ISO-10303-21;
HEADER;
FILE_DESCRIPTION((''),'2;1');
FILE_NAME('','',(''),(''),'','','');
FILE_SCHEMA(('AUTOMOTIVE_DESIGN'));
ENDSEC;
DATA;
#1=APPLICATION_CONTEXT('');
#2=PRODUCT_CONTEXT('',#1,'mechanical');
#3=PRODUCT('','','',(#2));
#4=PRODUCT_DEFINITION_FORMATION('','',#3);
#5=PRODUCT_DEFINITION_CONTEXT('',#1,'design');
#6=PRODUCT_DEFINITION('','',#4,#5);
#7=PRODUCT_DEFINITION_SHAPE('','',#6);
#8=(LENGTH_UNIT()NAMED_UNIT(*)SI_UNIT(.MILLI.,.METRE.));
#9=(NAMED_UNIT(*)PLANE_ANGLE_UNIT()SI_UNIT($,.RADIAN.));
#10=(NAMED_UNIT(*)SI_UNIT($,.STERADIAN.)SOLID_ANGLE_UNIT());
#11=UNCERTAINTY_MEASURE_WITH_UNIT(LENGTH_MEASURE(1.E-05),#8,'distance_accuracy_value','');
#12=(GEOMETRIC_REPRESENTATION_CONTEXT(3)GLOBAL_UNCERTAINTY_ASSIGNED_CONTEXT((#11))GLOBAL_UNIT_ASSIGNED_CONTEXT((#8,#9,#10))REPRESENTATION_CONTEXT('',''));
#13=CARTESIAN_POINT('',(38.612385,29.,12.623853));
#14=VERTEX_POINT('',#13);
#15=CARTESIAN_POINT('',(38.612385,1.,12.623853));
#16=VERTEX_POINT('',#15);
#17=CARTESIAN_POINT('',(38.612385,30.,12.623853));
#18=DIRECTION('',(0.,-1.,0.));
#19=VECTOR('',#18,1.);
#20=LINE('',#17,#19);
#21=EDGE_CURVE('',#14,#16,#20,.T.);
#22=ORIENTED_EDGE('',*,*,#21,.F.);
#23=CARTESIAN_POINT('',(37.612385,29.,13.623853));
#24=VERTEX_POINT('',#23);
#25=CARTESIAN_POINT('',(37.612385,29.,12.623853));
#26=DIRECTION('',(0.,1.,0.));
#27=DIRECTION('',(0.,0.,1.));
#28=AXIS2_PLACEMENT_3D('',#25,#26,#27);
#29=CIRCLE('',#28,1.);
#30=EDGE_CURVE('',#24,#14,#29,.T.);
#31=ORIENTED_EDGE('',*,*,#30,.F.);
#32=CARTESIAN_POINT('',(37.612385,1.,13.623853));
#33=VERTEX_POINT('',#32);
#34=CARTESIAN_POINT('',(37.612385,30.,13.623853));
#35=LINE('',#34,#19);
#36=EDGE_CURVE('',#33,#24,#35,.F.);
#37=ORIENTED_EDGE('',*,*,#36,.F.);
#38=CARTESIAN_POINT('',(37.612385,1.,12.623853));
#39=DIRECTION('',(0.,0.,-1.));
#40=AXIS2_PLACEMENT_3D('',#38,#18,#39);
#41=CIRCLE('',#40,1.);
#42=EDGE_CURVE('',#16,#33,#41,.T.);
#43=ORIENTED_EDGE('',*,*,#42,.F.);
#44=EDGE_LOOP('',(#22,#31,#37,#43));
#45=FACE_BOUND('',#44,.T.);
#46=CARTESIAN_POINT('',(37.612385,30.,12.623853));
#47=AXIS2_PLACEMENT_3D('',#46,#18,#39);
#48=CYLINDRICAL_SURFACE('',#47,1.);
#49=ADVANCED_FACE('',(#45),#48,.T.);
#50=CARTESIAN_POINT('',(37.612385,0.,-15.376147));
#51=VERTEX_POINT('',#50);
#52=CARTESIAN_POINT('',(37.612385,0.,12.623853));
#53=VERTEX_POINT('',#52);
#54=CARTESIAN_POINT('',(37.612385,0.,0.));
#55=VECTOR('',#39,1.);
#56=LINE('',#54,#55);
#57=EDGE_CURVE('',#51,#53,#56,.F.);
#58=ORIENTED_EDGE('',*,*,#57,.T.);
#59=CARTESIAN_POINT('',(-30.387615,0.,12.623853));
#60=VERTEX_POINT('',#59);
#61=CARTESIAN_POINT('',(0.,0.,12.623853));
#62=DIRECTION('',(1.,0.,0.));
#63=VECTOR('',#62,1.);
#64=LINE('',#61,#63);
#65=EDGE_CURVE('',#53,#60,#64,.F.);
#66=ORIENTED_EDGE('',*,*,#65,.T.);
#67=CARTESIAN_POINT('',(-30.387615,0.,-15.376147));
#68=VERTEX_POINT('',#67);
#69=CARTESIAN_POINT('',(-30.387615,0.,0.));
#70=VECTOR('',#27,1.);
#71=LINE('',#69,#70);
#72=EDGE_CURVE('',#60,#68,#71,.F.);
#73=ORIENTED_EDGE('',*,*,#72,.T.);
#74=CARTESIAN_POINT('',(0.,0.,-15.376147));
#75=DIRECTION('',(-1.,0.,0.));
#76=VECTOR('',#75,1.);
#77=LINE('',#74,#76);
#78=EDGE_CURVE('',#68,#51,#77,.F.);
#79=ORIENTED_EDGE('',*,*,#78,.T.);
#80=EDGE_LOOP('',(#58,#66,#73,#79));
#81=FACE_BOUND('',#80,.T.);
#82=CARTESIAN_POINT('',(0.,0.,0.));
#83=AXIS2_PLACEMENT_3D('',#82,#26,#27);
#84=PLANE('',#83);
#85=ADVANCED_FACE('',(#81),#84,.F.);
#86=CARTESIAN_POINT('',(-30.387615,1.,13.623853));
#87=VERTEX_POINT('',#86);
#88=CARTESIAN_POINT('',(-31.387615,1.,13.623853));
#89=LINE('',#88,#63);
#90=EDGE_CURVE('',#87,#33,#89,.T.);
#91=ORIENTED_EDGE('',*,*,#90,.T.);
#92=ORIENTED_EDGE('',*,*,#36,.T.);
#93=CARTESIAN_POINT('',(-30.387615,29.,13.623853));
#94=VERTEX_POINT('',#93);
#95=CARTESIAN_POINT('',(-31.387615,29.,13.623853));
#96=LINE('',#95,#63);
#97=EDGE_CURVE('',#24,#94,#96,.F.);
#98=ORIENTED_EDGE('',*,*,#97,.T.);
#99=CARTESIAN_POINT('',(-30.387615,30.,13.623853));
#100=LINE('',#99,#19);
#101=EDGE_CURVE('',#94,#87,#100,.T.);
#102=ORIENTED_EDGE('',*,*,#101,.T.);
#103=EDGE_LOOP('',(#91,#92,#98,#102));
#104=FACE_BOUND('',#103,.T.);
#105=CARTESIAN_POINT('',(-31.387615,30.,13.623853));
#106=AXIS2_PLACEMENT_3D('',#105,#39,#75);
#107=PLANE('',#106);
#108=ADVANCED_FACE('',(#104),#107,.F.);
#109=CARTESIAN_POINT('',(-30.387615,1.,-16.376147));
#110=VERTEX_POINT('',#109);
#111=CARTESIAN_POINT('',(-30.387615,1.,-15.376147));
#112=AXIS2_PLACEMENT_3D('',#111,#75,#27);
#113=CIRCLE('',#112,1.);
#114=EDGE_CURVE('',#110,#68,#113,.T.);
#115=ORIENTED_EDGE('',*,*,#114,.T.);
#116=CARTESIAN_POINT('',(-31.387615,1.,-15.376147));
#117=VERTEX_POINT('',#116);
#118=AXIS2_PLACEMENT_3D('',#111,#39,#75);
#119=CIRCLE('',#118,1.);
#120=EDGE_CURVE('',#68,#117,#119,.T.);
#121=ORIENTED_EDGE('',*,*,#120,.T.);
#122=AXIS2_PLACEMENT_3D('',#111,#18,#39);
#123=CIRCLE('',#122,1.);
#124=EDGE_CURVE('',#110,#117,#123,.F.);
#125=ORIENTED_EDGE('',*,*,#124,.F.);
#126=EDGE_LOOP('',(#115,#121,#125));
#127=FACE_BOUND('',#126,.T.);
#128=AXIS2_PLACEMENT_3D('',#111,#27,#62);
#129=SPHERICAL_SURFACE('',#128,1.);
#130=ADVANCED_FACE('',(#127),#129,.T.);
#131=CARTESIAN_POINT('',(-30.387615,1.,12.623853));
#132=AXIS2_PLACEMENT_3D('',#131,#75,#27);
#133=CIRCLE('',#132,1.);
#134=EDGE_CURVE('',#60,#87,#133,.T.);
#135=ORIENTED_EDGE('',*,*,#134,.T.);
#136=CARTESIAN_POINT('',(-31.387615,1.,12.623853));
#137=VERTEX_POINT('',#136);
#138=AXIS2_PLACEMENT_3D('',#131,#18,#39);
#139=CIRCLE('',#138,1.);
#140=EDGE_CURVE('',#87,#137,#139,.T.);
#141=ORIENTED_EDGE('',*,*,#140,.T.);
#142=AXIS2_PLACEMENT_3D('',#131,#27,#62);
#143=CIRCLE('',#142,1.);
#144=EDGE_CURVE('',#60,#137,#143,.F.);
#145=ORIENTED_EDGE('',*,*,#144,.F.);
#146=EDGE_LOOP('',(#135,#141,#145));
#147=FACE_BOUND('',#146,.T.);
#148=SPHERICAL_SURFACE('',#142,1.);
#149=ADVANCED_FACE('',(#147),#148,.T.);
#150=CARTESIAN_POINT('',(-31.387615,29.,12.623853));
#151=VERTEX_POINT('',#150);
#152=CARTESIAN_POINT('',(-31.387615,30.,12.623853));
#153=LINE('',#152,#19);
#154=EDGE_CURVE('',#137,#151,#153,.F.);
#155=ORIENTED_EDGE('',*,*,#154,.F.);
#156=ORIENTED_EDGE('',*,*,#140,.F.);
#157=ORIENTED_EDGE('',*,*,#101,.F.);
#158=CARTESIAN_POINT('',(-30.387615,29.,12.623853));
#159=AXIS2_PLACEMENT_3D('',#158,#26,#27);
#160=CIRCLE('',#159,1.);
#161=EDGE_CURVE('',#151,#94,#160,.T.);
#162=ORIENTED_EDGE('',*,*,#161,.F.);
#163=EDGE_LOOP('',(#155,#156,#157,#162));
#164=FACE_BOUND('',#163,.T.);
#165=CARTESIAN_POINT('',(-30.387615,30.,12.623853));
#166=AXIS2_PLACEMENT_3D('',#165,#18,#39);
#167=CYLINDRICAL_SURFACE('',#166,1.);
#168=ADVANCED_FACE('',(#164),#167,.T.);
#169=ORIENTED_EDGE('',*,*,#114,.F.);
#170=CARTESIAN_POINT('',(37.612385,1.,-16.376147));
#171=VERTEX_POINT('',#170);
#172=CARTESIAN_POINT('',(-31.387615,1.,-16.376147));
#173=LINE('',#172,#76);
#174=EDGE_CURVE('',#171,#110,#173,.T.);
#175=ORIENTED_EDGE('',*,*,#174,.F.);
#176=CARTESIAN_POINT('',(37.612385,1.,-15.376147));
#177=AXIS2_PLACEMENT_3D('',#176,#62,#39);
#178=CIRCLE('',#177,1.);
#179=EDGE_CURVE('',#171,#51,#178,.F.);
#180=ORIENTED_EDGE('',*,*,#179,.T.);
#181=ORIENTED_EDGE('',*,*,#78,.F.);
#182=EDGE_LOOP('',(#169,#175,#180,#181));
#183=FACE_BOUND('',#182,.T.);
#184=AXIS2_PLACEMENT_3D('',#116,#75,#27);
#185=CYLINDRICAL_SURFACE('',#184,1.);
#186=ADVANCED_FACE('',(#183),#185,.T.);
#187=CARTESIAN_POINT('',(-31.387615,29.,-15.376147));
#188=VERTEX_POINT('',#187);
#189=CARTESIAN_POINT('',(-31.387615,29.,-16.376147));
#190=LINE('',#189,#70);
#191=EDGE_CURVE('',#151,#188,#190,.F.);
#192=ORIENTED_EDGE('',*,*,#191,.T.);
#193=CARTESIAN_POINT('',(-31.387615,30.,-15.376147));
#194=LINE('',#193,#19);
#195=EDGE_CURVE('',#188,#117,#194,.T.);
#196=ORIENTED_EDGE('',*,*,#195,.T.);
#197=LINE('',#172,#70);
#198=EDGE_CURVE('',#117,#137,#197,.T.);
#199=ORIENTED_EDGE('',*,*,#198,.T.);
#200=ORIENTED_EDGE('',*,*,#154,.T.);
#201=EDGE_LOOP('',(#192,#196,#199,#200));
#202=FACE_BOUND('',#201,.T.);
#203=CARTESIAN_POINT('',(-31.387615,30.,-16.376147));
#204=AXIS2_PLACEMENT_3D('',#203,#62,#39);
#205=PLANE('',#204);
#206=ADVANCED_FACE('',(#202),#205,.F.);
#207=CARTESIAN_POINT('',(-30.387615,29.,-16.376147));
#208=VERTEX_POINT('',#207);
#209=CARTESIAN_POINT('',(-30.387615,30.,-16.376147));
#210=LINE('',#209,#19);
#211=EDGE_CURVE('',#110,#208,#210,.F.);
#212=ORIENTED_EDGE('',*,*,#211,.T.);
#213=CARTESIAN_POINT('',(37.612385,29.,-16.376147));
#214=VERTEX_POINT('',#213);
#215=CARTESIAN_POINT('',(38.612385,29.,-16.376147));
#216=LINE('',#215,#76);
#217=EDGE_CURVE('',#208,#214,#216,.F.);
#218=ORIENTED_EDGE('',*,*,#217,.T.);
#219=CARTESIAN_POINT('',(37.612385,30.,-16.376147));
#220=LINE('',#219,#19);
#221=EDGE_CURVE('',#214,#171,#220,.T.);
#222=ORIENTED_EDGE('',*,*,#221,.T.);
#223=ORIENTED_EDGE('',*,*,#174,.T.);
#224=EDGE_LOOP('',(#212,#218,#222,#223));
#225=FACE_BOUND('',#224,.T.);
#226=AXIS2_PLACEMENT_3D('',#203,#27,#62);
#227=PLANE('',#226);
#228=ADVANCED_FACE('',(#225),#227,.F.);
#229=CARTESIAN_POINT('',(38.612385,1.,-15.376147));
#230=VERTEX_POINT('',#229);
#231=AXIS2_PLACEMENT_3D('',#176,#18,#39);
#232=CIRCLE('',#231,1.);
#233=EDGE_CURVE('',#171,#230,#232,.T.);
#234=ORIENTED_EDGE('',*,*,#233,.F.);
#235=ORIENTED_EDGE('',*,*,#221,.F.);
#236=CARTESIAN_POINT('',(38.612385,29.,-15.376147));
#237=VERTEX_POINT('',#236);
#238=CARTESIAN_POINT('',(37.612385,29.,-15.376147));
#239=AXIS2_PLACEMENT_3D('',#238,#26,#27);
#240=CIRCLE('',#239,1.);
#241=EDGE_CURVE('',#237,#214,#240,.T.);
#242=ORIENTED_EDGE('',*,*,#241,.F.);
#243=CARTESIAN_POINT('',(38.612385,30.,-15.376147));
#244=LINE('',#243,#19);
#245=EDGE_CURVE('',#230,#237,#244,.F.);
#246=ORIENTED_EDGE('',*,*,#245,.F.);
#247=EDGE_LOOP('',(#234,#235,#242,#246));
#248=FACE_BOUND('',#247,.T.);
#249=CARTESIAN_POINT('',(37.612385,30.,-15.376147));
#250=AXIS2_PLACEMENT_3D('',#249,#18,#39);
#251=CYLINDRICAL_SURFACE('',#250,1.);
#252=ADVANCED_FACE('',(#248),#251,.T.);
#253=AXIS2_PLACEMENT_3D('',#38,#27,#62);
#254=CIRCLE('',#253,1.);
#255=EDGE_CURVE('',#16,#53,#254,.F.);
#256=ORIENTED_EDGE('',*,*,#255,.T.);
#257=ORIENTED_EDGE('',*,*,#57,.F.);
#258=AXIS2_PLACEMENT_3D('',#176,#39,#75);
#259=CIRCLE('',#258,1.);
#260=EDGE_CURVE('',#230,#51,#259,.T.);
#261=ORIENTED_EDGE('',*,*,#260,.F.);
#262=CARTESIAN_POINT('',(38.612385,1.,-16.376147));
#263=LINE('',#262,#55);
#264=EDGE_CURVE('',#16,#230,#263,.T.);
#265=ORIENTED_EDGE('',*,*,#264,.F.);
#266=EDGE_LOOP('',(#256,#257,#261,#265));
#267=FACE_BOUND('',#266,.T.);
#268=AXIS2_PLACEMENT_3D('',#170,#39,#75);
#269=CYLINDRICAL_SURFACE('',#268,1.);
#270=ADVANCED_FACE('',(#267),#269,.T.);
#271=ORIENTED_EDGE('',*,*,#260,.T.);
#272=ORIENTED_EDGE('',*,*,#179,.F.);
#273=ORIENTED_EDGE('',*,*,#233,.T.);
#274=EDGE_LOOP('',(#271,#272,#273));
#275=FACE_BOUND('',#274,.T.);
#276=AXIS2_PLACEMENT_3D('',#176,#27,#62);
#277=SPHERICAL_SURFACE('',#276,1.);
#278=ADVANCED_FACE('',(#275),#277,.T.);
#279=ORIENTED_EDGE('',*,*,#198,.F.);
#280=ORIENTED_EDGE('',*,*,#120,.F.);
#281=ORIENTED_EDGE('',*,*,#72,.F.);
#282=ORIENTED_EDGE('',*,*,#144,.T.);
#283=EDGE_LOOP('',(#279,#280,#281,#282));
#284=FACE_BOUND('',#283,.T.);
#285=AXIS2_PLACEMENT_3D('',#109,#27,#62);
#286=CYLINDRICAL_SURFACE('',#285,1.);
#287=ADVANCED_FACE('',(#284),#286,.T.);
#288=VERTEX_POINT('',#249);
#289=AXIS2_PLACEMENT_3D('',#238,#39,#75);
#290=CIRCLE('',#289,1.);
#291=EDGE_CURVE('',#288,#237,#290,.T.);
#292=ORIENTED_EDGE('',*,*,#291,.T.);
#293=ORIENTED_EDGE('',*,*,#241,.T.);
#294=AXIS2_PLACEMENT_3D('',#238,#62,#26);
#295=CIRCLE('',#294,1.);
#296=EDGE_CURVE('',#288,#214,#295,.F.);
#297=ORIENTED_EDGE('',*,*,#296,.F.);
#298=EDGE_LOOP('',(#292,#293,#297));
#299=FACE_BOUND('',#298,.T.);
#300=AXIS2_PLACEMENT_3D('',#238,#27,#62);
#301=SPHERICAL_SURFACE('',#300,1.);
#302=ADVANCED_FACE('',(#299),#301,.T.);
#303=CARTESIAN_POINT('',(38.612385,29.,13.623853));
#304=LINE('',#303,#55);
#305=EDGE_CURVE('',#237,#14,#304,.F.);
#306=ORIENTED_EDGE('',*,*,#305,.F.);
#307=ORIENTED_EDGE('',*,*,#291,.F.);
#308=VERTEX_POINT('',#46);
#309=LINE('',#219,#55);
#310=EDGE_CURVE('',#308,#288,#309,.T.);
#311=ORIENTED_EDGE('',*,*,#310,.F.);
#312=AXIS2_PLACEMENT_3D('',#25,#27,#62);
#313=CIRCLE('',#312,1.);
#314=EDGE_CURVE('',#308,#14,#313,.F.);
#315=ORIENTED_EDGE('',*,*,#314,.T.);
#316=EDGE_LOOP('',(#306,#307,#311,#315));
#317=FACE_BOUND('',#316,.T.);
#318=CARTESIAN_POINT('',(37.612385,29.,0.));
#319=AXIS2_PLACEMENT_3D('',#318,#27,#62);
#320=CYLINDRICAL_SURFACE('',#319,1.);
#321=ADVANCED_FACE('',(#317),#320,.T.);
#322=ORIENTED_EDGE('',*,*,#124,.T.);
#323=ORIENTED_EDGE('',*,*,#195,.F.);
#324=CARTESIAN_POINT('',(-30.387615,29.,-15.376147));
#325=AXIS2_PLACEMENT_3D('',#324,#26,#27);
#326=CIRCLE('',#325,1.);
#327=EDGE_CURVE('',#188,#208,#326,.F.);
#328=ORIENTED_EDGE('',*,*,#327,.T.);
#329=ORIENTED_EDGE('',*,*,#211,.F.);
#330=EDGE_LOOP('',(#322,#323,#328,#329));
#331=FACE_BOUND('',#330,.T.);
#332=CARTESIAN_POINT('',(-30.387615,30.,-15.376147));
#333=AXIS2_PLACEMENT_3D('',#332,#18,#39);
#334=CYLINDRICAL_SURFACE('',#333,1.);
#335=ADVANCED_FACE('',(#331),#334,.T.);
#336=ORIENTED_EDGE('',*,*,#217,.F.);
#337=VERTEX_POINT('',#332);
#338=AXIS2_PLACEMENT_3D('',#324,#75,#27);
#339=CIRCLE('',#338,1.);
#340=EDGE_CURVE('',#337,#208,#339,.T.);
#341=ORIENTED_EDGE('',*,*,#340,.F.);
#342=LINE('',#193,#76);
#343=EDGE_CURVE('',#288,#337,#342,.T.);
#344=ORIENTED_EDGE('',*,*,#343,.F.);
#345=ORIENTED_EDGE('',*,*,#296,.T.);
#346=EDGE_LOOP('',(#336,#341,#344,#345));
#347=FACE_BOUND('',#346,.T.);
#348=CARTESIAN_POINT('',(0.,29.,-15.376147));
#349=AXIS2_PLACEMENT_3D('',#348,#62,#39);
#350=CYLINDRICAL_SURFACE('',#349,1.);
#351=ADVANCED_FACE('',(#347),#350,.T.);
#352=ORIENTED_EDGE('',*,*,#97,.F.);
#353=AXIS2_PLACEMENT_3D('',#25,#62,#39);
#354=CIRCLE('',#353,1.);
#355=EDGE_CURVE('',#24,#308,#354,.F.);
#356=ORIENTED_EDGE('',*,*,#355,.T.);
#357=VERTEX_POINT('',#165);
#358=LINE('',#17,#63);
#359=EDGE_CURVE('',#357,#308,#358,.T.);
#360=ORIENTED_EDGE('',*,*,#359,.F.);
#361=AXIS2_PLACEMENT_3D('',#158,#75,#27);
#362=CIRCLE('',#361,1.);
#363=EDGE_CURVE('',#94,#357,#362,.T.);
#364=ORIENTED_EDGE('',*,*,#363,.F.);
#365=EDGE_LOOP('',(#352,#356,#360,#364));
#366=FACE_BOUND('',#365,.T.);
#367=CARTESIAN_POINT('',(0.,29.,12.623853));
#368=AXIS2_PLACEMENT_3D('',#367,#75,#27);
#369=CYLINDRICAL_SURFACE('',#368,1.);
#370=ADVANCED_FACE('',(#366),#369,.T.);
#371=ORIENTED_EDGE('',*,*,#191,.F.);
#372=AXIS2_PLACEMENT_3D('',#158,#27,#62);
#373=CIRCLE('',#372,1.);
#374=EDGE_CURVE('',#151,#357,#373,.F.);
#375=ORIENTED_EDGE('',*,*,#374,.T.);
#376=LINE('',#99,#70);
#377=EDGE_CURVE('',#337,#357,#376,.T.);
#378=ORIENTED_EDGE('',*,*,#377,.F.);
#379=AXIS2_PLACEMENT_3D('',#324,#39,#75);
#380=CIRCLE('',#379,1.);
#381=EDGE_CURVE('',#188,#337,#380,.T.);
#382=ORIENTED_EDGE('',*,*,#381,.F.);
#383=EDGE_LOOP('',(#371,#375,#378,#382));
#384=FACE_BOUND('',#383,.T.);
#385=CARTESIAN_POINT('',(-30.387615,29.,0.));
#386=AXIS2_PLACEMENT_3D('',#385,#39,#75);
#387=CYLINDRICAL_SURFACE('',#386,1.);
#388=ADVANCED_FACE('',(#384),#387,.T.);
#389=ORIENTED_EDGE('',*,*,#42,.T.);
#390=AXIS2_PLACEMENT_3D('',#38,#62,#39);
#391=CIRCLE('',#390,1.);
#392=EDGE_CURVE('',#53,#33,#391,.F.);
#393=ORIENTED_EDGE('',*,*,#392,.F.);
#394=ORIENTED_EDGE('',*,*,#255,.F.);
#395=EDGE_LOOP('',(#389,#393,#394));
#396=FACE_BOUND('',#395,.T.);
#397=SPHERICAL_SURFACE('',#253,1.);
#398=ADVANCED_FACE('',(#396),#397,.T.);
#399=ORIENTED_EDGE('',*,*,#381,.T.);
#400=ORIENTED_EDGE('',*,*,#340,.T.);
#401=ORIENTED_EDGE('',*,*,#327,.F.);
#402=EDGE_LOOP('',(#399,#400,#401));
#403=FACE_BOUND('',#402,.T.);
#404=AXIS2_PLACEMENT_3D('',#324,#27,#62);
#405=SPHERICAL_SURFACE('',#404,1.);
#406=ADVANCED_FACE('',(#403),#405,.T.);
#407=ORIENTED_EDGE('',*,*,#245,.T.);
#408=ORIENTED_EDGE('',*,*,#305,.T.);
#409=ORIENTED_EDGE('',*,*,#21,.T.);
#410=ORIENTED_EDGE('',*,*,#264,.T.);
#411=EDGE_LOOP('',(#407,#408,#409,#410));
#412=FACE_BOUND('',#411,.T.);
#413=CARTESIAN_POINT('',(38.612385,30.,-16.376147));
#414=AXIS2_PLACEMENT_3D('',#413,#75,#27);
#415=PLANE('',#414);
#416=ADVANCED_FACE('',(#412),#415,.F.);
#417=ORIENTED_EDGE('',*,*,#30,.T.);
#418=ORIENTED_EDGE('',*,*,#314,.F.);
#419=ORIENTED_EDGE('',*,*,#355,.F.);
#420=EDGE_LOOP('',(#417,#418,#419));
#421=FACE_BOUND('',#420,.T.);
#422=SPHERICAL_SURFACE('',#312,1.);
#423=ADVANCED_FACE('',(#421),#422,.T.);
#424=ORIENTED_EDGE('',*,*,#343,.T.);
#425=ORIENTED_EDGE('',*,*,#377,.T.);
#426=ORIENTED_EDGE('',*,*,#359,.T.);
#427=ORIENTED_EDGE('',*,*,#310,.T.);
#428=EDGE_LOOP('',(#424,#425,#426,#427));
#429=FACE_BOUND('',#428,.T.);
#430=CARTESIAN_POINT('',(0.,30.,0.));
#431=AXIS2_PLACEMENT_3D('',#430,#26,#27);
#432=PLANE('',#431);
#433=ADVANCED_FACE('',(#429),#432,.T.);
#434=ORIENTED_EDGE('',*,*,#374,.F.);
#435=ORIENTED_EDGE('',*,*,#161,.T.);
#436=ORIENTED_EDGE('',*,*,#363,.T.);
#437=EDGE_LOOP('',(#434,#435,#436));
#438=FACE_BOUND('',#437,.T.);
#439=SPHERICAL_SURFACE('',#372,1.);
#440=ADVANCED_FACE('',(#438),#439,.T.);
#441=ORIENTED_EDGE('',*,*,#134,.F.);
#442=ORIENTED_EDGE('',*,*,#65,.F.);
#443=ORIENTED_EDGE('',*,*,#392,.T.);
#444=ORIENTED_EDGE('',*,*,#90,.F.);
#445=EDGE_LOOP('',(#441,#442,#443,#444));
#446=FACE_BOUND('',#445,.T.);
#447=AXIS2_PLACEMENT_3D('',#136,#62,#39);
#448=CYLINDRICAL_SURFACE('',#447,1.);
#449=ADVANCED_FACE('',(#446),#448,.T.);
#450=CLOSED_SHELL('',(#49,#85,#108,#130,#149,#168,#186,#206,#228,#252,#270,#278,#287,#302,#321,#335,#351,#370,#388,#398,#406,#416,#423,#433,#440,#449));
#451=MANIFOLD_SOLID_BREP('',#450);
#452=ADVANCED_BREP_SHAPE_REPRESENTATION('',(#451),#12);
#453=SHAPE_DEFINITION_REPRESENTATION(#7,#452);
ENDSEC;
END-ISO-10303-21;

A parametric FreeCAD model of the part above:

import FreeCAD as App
import Part
import Sketcher
from FreeCAD import Vector

doc = App.newDocument("Part")
body = doc.addObject("PartDesign::Body", "Body")

sketch1 = body.newObject("Sketcher::SketchObject", "Sketch")
sketch1.AttachmentSupport = (doc.getObject("XZ_Plane"), [""])
sketch1.MapMode = "FlatFace"
sketch1.addGeometry(Part.LineSegment(Vector(-31, -16, 0), Vector(-31, 14, 0)), False)
sketch1.addGeometry(Part.LineSegment(Vector(-31, 14, 0), Vector(39, 14, 0)), False)
sketch1.addGeometry(Part.LineSegment(Vector(39, 14, 0), Vector(39, -16, 0)), False)
sketch1.addGeometry(Part.LineSegment(Vector(39, -16, 0), Vector(-31, -16, 0)), False)
sketch1.addConstraint(Sketcher.Constraint("Coincident", 0, 2, 1, 1))
sketch1.addConstraint(Sketcher.Constraint("Coincident", 1, 2, 2, 1))
sketch1.addConstraint(Sketcher.Constraint("Coincident", 2, 2, 3, 1))
sketch1.addConstraint(Sketcher.Constraint("Coincident", 3, 2, 0, 1))
sketch1.addConstraint(Sketcher.Constraint("Vertical", 0))
sketch1.addConstraint(Sketcher.Constraint("Horizontal", 1))
sketch1.addConstraint(Sketcher.Constraint("Vertical", 2))
sketch1.addConstraint(Sketcher.Constraint("Horizontal", 3))
sketch1.addConstraint(Sketcher.Constraint("DistanceX", 1, 1, 1, 2, 70.0))
sketch1.addConstraint(Sketcher.Constraint("DistanceY", 0, 1, 0, 2, 30.0))
sketch1.addConstraint(Sketcher.Constraint("DistanceX", 0, 2, -1, 1, 31.387615))
sketch1.addConstraint(Sketcher.Constraint("DistanceY", -1, 1, 0, 2, 13.623853))
pad1 = body.newObject("PartDesign::Pad", "Pad")
pad1.Profile = sketch1
pad1.Length = 30
pad1.Reversed = True
doc.recompute()

fillet = body.newObject("PartDesign::Fillet", "Fillet")
fillet.Base = (pad1, ["Edge1"])
fillet.UseAllEdges = True
fillet.Radius = 1

doc.recompute()
